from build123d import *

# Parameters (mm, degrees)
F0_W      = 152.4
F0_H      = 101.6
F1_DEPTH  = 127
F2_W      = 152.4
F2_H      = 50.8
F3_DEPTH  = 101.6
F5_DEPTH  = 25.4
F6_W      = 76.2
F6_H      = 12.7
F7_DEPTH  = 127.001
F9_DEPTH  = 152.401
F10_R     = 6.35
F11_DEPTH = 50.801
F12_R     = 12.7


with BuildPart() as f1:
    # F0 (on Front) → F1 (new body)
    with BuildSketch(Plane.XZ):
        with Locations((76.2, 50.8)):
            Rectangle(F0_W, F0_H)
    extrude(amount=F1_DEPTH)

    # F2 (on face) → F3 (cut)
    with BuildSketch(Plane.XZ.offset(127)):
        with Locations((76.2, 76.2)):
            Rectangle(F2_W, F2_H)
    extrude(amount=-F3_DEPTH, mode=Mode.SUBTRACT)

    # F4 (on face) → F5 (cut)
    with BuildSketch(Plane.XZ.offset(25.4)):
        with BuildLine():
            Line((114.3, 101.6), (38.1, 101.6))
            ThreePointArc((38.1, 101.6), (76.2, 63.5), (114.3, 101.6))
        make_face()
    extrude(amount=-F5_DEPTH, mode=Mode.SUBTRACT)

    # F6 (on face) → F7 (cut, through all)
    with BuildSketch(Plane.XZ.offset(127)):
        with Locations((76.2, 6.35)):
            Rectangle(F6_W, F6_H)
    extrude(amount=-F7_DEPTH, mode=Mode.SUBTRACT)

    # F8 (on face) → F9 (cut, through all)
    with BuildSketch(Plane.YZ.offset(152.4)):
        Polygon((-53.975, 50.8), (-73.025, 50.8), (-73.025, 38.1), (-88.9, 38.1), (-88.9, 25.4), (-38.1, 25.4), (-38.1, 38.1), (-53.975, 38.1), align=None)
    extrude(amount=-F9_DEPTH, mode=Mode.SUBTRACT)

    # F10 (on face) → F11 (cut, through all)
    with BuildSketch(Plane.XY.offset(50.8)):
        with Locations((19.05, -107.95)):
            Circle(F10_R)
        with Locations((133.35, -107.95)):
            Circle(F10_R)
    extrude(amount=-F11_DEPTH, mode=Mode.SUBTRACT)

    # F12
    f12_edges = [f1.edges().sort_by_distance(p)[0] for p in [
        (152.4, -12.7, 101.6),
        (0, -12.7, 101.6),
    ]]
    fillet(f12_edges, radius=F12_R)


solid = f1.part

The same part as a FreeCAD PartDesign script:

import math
import FreeCAD as App
import Part
import Sketcher
from FreeCAD import Vector
Q = App.Units.Quantity


def edges_at(feature, points):
    """Names of the edges that pass closest to the given points."""
    edges = feature.Shape.Edges
    near = lambda p: min(range(len(edges)), key=lambda i: edges[i].distToShape(Part.Vertex(*p))[0])
    return sorted({f"Edge{near(p) + 1}" for p in points})

doc = App.newDocument("Part")
body = doc.addObject("PartDesign::Body", "Body")

# Sketch on XZ plane
sketch1 = body.newObject("Sketcher::SketchObject", "Sketch")
sketch1.AttachmentSupport = (doc.getObject("XZ_Plane"), [""])
sketch1.MapMode = "FlatFace"
sketch1.addGeometry(Part.LineSegment(Vector(0, 101.6, 0), Vector(0, 0, 0)), False)
sketch1.addGeometry(Part.LineSegment(Vector(0, 0, 0), Vector(152.4, 0, 0)), False)
sketch1.addGeometry(Part.LineSegment(Vector(152.4, 0, 0), Vector(152.4, 101.6, 0)), False)
sketch1.addGeometry(Part.LineSegment(Vector(152.4, 101.6, 0), Vector(0, 101.6, 0)), False)
sketch1.addConstraint(Sketcher.Constraint("Coincident", 0, 2, 1, 1))
sketch1.addConstraint(Sketcher.Constraint("Coincident", 1, 2, 2, 1))
sketch1.addConstraint(Sketcher.Constraint("Coincident", 2, 2, 3, 1))
sketch1.addConstraint(Sketcher.Constraint("Coincident", 3, 2, 0, 1))
sketch1.addConstraint(Sketcher.Constraint("Vertical", 0))
sketch1.addConstraint(Sketcher.Constraint("Horizontal", 1))
sketch1.addConstraint(Sketcher.Constraint("Vertical", 2))
sketch1.addConstraint(Sketcher.Constraint("Horizontal", 3))
sketch1.addConstraint(Sketcher.Constraint("Coincident", 0, 2, -1, 1))
sketch1.addConstraint(Sketcher.Constraint("DistanceX", 1, 1, 1, 2, Q("6 in")))
sketch1.addConstraint(Sketcher.Constraint("DistanceY", 0, 2, 0, 1, Q("4 in")))
pad1 = body.newObject("PartDesign::Pad", "Pad")
pad1.Profile = sketch1
pad1.Length = Q("5 in")

# Sketch on XZ plane
sketch2 = body.newObject("Sketcher::SketchObject", "Sketch001")
sketch2.AttachmentSupport = (doc.getObject("XZ_Plane"), [""])
sketch2.MapMode = "FlatFace"
sketch2.AttachmentOffset = App.Placement(Vector(0, 0, 5 * 25.4), App.Rotation())
sketch2.addGeometry(Part.LineSegment(Vector(0, 101.6, 0), Vector(0, 50.8, 0)), False)
sketch2.addGeometry(Part.LineSegment(Vector(0, 50.8, 0), Vector(152.4, 50.8, 0)), False)
sketch2.addGeometry(Part.LineSegment(Vector(152.4, 50.8, 0), Vector(152.4, 101.6, 0)), False)
sketch2.addGeometry(Part.LineSegment(Vector(152.4, 101.6, 0), Vector(0, 101.6, 0)), False)
sketch2.addConstraint(Sketcher.Constraint("Coincident", 0, 2, 1, 1))
sketch2.addConstraint(Sketcher.Constraint("Coincident", 1, 2, 2, 1))
sketch2.addConstraint(Sketcher.Constraint("Coincident", 2, 2, 3, 1))
sketch2.addConstraint(Sketcher.Constraint("Coincident", 3, 2, 0, 1))
sketch2.addConstraint(Sketcher.Constraint("Vertical", 0))
sketch2.addConstraint(Sketcher.Constraint("Horizontal", 1))
sketch2.addConstraint(Sketcher.Constraint("Vertical", 2))
sketch2.addConstraint(Sketcher.Constraint("Horizontal", 3))
sketch2.addConstraint(Sketcher.Constraint("PointOnObject", 0, 2, -2))
sketch2.addConstraint(Sketcher.Constraint("DistanceX", 1, 1, 1, 2, Q("6 in")))
sketch2.addConstraint(Sketcher.Constraint("DistanceY", 0, 2, 0, 1, Q("2 in")))
sketch2.addConstraint(Sketcher.Constraint("DistanceY", -1, 1, 0, 2, Q("2 in")))
pocket1 = body.newObject("PartDesign::Pocket", "Pocket")
pocket1.Profile = sketch2
pocket1.Length = Q("4 in")

# Sketch on XZ plane
sketch3 = body.newObject("Sketcher::SketchObject", "Sketch002")
sketch3.AttachmentSupport = (doc.getObject("XZ_Plane"), [""])
sketch3.MapMode = "FlatFace"
sketch3.AttachmentOffset = App.Placement(Vector(0, 0, 1 * 25.4), App.Rotation())
sketch3.addGeometry(Part.LineSegment(Vector(114.3, 101.6, 0), Vector(38.1, 101.6, 0)), False)
sketch3.addGeometry(Part.ArcOfCircle(Part.Circle(Vector(76.2, 101.6, 0), Vector(0, 0, 1), 38.1), math.radians(180), math.radians(360)), False)
sketch3.addConstraint(Sketcher.Constraint("Coincident", 0, 1, 1, 2))
sketch3.addConstraint(Sketcher.Constraint("Coincident", 1, 1, 0, 2))
sketch3.addConstraint(Sketcher.Constraint("Horizontal", 0))
sketch3.addConstraint(Sketcher.Constraint("Horizontal", 1, 3, 0, 1))
sketch3.addConstraint(Sketcher.Constraint("Radius", 1, Q("1.5 in")))
sketch3.addConstraint(Sketcher.Constraint("DistanceX", -1, 1, 1, 3, Q("3 in")))
sketch3.addConstraint(Sketcher.Constraint("DistanceY", -1, 1, 1, 3, Q("4 in")))
pocket2 = body.newObject("PartDesign::Pocket", "Pocket001")
pocket2.Profile = sketch3
pocket2.Length = Q("1 in")

# Sketch on XZ plane
sketch4 = body.newObject("Sketcher::SketchObject", "Sketch003")
sketch4.AttachmentSupport = (doc.getObject("XZ_Plane"), [""])
sketch4.MapMode = "FlatFace"
sketch4.AttachmentOffset = App.Placement(Vector(0, 0, 5 * 25.4), App.Rotation())
sketch4.addGeometry(Part.LineSegment(Vector(38.1, 12.7, 0), Vector(38.1, 0, 0)), False)
sketch4.addGeometry(Part.LineSegment(Vector(38.1, 0, 0), Vector(114.3, 0, 0)), False)
sketch4.addGeometry(Part.LineSegment(Vector(114.3, 0, 0), Vector(114.3, 12.7, 0)), False)
sketch4.addGeometry(Part.LineSegment(Vector(114.3, 12.7, 0), Vector(38.1, 12.7, 0)), False)
sketch4.addConstraint(Sketcher.Constraint("Coincident", 0, 2, 1, 1))
sketch4.addConstraint(Sketcher.Constraint("Coincident", 1, 2, 2, 1))
sketch4.addConstraint(Sketcher.Constraint("Coincident", 2, 2, 3, 1))
sketch4.addConstraint(Sketcher.Constraint("Coincident", 3, 2, 0, 1))
sketch4.addConstraint(Sketcher.Constraint("Vertical", 0))
sketch4.addConstraint(Sketcher.Constraint("Horizontal", 1))
sketch4.addConstraint(Sketcher.Constraint("Vertical", 2))
sketch4.addConstraint(Sketcher.Constraint("Horizontal", 3))
sketch4.addConstraint(Sketcher.Constraint("PointOnObject", 0, 2, -1))
sketch4.addConstraint(Sketcher.Constraint("DistanceX", 1, 1, 1, 2, Q("3 in")))
sketch4.addConstraint(Sketcher.Constraint("DistanceY", 0, 2, 0, 1, Q("0.5 in")))
sketch4.addConstraint(Sketcher.Constraint("DistanceX", -1, 1, 0, 2, Q("1.5 in")))
pocket3 = body.newObject("PartDesign::Pocket", "Pocket002")
pocket3.Profile = sketch4
pocket3.Type = "ThroughAll"

# Sketch on YZ plane
sketch5 = body.newObject("Sketcher::SketchObject", "Sketch004")
sketch5.AttachmentSupport = (doc.getObject("YZ_Plane"), [""])
sketch5.MapMode = "FlatFace"
sketch5.AttachmentOffset = App.Placement(Vector(0, 0, 6 * 25.4), App.Rotation())
sketch5.addGeometry(Part.LineSegment(Vector(-53.975, 50.8, 0), Vector(-73.025, 50.8, 0)), False)
sketch5.addGeometry(Part.LineSegment(Vector(-73.025, 50.8, 0), Vector(-73.025, 38.1, 0)), False)
sketch5.addGeometry(Part.LineSegment(Vector(-73.025, 38.1, 0), Vector(-88.9, 38.1, 0)), False)
sketch5.addGeometry(Part.LineSegment(Vector(-88.9, 38.1, 0), Vector(-88.9, 25.4, 0)), False)
sketch5.addGeometry(Part.LineSegment(Vector(-88.9, 25.4, 0), Vector(-38.1, 25.4, 0)), False)
sketch5.addGeometry(Part.LineSegment(Vector(-38.1, 25.4, 0), Vector(-38.1, 38.1, 0)), False)
sketch5.addGeometry(Part.LineSegment(Vector(-38.1, 38.1, 0), Vector(-53.975, 38.1, 0)), False)
sketch5.addGeometry(Part.LineSegment(Vector(-53.975, 38.1, 0), Vector(-53.975, 50.8, 0)), False)
sketch5.addConstraint(Sketcher.Constraint("Coincident", 0, 2, 1, 1))
sketch5.addConstraint(Sketcher.Constraint("Coincident", 1, 2, 2, 1))
sketch5.addConstraint(Sketcher.Constraint("Coincident", 2, 2, 3, 1))
sketch5.addConstraint(Sketcher.Constraint("Coincident", 3, 2, 4, 1))
sketch5.addConstraint(Sketcher.Constraint("Coincident", 4, 2, 5, 1))
sketch5.addConstraint(Sketcher.Constraint("Coincident", 5, 2, 6, 1))
sketch5.addConstraint(Sketcher.Constraint("Coincident", 6, 2, 7, 1))
sketch5.addConstraint(Sketcher.Constraint("Coincident", 7, 2, 0, 1))
sketch5.addConstraint(Sketcher.Constraint("Horizontal", 0))
sketch5.addConstraint(Sketcher.Constraint("Vertical", 1))
sketch5.addConstraint(Sketcher.Constraint("Horizontal", 2))
sketch5.addConstraint(Sketcher.Constraint("Vertical", 3))
sketch5.addConstraint(Sketcher.Constraint("Horizontal", 4))
sketch5.addConstraint(Sketcher.Constraint("Vertical", 5))
sketch5.addConstraint(Sketcher.Constraint("Horizontal", 6))
sketch5.addConstraint(Sketcher.Constraint("Vertical", 7))
sketch5.addConstraint(Sketcher.Constraint("Horizontal", 2, 2, 5, 2))
sketch5.addConstraint(Sketcher.Constraint("Equal", 2, 6))
sketch5.addConstraint(Sketcher.Constraint("Equal", 1, 3))
sketch5.addConstraint(Sketcher.Constraint("DistanceX", 4, 1, 4, 2, Q("2 in")))
sketch5.addConstraint(Sketcher.Constraint("DistanceY", 1, 2, 1, 1, Q("0.5 in")))
sketch5.addConstraint(Sketcher.Constraint("DistanceY", -1, 1, 0, 2, Q("2 in")))
sketch5.addConstraint(Sketcher.Constraint("DistanceX", 0, 2, 0, 1, Q("0.75 in")))
sketch5.addConstraint(Sketcher.Constraint("DistanceX", 2, 2, -1, 1, Q("3.5 in")))
pocket4 = body.newObject("PartDesign::Pocket", "Pocket003")
pocket4.Profile = sketch5
pocket4.Type = "ThroughAll"

# Sketch on XY plane
sketch6 = body.newObject("Sketcher::SketchObject", "Sketch005")
sketch6.AttachmentSupport = (doc.getObject("XY_Plane"), [""])
sketch6.MapMode = "FlatFace"
sketch6.AttachmentOffset = App.Placement(Vector(0, 0, 2 * 25.4), App.Rotation())
sketch6.addGeometry(Part.Circle(Vector(19.05, -107.95, 0), Vector(0, 0, 1), 6.35), False)
sketch6.addGeometry(Part.Circle(Vector(133.35, -107.95, 0), Vector(0, 0, 1), 6.35), False)
sketch6.addConstraint(Sketcher.Constraint("Equal", 0, 1))
sketch6.addConstraint(Sketcher.Constraint("Horizontal", 0, 3, 1, 3))
sketch6.addConstraint(Sketcher.Constraint("Diameter", 0, Q("0.5 in")))
sketch6.addConstraint(Sketcher.Constraint("DistanceX", 0, 3, 1, 3, Q("4.5 in")))
sketch6.addConstraint(Sketcher.Constraint("DistanceX", -1, 1, 0, 3, Q("0.75 in")))
sketch6.addConstraint(Sketcher.Constraint("DistanceY", 0, 3, -1, 1, Q("4.25 in")))
pocket5 = body.newObject("PartDesign::Pocket", "Pocket004")
pocket5.Profile = sketch6
pocket5.Type = "ThroughAll"
doc.recompute()

fillet = body.newObject("PartDesign::Fillet", "Fillet")
fillet.Base = (pocket5, edges_at(pocket5, [(152.4, -12.7, 101.6), (0, -12.7, 101.6)]))
fillet.Radius = Q("0.5 in")

doc.recompute()
